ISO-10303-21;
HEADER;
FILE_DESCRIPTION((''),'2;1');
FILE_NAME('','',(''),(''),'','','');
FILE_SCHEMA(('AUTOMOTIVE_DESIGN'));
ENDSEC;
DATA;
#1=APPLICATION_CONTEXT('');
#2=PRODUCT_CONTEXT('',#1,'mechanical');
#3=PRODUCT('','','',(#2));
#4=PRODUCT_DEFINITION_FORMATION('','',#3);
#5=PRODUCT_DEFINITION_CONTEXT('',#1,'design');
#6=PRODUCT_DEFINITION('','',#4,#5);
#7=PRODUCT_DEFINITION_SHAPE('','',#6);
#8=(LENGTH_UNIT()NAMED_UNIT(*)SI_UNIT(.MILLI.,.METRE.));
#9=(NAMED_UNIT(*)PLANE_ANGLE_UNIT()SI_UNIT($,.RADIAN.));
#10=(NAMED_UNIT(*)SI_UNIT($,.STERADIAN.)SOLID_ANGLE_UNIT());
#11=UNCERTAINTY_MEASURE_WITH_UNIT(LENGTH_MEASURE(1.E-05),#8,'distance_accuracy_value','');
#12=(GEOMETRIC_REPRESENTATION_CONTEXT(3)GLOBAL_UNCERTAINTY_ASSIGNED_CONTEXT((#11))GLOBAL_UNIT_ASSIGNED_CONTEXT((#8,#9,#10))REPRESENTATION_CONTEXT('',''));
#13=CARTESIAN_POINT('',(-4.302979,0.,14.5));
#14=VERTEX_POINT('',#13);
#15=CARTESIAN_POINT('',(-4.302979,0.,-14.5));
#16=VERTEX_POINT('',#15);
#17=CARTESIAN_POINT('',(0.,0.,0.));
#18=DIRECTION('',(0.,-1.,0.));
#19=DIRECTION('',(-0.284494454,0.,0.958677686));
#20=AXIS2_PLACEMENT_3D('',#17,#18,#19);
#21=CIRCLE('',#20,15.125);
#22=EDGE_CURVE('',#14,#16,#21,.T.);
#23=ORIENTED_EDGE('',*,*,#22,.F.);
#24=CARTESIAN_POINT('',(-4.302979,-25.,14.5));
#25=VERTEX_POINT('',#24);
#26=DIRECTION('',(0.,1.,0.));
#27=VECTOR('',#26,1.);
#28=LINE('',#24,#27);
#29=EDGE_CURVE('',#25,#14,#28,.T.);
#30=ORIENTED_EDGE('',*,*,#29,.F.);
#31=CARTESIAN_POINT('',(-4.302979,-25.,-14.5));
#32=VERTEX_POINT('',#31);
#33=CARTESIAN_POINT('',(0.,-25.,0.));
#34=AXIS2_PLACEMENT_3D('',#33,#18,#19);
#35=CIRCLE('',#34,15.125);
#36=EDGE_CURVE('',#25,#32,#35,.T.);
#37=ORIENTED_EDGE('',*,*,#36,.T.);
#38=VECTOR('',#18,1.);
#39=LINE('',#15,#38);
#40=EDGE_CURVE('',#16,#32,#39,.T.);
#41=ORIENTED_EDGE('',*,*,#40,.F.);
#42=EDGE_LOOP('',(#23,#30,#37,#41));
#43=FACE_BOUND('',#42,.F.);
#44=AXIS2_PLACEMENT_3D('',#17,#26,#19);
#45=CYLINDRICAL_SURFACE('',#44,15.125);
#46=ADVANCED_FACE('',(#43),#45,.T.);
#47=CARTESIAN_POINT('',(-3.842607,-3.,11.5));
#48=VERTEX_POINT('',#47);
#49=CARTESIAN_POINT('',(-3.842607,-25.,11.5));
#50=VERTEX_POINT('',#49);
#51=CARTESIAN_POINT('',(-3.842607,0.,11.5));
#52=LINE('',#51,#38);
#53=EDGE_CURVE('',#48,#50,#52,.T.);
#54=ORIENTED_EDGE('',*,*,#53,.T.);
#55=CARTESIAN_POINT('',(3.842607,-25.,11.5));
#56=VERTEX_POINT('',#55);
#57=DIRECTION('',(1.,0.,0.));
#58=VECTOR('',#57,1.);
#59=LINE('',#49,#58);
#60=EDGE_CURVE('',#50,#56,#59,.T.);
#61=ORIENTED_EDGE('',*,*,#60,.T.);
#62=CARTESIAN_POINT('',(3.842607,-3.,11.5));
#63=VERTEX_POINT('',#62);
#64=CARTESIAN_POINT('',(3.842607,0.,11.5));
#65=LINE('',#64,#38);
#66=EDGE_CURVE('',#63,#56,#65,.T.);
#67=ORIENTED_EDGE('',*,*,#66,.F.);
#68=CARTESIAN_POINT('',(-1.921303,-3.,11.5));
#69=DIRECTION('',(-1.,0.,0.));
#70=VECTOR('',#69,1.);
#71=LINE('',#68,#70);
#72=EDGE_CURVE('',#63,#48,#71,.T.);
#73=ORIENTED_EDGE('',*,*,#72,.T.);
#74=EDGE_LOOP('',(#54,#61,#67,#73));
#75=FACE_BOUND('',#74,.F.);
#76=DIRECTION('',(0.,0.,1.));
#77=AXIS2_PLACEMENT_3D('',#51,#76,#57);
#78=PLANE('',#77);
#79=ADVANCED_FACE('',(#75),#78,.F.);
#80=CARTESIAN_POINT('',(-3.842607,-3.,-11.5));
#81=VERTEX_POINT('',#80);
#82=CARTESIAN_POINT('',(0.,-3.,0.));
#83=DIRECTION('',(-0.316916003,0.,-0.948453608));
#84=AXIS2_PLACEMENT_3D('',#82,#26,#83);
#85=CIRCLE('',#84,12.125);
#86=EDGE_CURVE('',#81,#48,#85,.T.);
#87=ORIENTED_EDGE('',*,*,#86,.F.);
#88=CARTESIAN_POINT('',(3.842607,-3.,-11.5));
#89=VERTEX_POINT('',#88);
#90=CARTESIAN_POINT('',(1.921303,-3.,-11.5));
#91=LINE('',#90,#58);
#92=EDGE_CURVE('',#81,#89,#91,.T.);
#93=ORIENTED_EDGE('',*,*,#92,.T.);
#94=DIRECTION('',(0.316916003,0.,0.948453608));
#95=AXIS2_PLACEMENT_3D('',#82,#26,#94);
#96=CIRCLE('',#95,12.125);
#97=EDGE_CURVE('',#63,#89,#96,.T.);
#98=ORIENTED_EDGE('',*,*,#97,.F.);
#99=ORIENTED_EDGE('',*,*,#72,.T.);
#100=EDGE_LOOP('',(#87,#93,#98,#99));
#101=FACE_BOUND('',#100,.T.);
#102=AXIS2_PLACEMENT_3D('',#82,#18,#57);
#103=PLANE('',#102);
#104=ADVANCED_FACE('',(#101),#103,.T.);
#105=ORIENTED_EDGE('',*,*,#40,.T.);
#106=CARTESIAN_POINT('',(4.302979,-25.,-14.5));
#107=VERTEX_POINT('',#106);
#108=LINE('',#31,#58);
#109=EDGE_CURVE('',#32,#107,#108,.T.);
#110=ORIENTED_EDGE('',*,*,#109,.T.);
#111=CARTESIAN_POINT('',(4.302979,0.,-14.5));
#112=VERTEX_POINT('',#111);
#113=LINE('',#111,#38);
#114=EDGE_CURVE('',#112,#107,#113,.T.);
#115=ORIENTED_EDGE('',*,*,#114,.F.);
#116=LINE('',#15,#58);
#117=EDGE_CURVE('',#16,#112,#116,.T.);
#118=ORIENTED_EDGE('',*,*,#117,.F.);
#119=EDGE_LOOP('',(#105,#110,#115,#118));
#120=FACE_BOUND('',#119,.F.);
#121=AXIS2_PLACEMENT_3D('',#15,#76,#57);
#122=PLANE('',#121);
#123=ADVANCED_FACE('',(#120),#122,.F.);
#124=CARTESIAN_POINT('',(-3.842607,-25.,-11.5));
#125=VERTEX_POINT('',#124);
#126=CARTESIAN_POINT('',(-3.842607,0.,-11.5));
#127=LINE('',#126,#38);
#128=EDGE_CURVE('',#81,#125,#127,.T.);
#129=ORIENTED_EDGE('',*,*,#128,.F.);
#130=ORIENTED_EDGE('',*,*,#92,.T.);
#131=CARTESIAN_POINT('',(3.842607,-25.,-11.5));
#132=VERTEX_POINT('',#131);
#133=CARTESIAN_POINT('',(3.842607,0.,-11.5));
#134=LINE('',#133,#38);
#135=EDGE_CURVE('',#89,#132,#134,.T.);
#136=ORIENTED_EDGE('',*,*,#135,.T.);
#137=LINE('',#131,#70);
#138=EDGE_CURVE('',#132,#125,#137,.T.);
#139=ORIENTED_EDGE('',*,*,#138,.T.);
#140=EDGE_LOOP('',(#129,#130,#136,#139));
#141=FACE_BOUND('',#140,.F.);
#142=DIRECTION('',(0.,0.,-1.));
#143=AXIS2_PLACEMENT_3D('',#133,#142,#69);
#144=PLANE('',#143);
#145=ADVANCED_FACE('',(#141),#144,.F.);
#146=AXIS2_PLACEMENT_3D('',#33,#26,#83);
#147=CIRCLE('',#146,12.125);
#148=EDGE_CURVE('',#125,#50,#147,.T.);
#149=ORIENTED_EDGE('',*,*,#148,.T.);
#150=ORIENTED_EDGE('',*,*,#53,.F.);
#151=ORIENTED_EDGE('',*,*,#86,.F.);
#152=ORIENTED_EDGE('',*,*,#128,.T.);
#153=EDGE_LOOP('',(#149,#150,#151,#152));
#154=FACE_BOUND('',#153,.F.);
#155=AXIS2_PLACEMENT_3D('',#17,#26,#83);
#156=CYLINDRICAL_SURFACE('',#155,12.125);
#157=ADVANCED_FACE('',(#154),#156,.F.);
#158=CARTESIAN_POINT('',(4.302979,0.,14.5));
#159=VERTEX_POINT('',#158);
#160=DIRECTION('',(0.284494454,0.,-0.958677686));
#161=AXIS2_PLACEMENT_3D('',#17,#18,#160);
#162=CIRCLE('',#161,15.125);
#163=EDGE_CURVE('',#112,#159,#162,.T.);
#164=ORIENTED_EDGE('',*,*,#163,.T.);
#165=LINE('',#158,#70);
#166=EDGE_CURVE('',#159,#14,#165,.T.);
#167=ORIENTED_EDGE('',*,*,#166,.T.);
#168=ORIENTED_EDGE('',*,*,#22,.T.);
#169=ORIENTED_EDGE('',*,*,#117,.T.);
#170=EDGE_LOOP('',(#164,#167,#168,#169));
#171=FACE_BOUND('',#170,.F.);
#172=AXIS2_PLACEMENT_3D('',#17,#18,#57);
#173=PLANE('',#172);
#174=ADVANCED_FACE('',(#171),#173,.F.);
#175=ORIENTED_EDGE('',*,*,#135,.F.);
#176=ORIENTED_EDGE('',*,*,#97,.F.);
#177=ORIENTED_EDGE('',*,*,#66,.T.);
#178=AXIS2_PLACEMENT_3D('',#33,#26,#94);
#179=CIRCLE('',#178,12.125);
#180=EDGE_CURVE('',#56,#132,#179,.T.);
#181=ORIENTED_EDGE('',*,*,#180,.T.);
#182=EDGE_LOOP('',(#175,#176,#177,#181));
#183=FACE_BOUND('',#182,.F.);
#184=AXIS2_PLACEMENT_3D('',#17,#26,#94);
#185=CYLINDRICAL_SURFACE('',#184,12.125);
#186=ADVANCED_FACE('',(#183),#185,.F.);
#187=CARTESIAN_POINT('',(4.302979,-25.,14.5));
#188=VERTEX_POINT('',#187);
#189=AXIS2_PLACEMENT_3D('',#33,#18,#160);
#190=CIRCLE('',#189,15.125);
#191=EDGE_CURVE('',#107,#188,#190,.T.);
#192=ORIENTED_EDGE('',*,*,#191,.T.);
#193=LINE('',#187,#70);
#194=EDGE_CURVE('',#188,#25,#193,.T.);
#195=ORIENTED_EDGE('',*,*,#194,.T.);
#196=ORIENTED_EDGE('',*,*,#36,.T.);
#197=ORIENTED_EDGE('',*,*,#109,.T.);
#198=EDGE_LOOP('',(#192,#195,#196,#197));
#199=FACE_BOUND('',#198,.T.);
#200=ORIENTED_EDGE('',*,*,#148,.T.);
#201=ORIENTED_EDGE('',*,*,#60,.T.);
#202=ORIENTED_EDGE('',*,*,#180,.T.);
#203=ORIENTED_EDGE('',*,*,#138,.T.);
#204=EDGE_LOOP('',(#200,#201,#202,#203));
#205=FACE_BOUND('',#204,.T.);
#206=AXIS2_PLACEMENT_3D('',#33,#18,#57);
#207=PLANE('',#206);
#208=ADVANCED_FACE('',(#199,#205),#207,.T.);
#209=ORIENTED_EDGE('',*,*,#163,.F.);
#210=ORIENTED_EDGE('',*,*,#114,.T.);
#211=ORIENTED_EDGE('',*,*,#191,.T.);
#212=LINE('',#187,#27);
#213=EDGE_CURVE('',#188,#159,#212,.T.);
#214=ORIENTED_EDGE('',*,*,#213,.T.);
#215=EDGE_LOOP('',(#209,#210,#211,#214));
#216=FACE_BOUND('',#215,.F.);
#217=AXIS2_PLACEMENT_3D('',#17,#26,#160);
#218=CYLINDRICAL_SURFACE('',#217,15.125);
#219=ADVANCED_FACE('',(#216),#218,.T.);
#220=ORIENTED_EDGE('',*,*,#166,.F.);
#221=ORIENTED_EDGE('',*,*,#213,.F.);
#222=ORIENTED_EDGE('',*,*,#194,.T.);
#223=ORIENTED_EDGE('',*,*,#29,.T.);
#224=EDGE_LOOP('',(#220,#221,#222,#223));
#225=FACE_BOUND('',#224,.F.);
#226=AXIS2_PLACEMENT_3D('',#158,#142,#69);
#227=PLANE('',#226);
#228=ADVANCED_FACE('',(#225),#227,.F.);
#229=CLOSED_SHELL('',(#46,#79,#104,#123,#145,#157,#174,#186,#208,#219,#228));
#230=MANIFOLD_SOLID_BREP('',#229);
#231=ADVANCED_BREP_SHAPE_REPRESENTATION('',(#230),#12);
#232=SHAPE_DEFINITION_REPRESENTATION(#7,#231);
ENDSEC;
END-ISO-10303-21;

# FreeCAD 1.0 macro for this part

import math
import FreeCAD as App
import Part
import Sketcher
from FreeCAD import Vector
Q = App.Units.Quantity

doc = App.newDocument("Part")
params = doc.addObject("Spreadsheet::Sheet", "Params")
for row, (alias, value) in enumerate([
    ("pad1_length", "3 mm"),
    ("pad2_length", "25 mm"),
], start=1):
    params.set(f"A{row}", alias)
    params.set(f"B{row}", "=" + value)
    params.setAlias(f"B{row}", alias)

body = doc.addObject("PartDesign::Body", "Body")

# Sketch on XZ plane
sketch1 = body.newObject("Sketcher::SketchObject", "Sketch")
sketch1.AttachmentSupport = (doc.getObject("XZ_Plane"), [""])
sketch1.MapMode = "FlatFace"
sketch1.addGeometry([
    Part.ArcOfCircle(Part.Circle(Vector(0, 0, 0), Vector(0, 0, 1), 15), math.radians(107), math.radians(253)),
    Part.LineSegment(Vector(-4, -14, 0), Vector(4, -14, 0)),
    Part.ArcOfCircle(Part.Circle(Vector(0, 0, 0), Vector(0, 0, 1), 15), math.radians(-73), math.radians(73)),
    Part.LineSegment(Vector(4, 14, 0), Vector(-4, 14, 0)),
], False)
sketch1.addConstraint([
    Sketcher.Constraint("Coincident", 0, 2, 1, 1),
    Sketcher.Constraint("Coincident", 1, 2, 2, 1),
    Sketcher.Constraint("Coincident", 2, 2, 3, 1),
    Sketcher.Constraint("Coincident", 3, 2, 0, 1),
    Sketcher.Constraint("Horizontal", 1),
    Sketcher.Constraint("Horizontal", 3),
    Sketcher.Constraint("Coincident", 0, 3, -1, 1),
    Sketcher.Constraint("Coincident", 2, 3, -1, 1),
    Sketcher.Constraint("Equal", 0, 2),
    Sketcher.Constraint("Vertical", 1, 2, 2, 2),
    Sketcher.Constraint("Radius", 0, Q("15.125 mm")),
    Sketcher.Constraint("DistanceY", 1, 2, 2, 2, Q("29 mm")),
])
pad1 = body.newObject("PartDesign::Pad", "Pad")
pad1.Profile = sketch1
pad1.setExpression("Length", "Params.pad1_length")

# Sketch on XZ plane
sketch2 = body.newObject("Sketcher::SketchObject", "Sketch001")
sketch2.AttachmentSupport = (doc.getObject("XZ_Plane"), [""])
sketch2.MapMode = "FlatFace"
sketch2.addGeometry([
    Part.ArcOfCircle(Part.Circle(Vector(0, 0, 0), Vector(0, 0, 1), 15), math.radians(107), math.radians(253)),  # 0
    Part.LineSegment(Vector(-4, -14, 0), Vector(4, -14, 0)),  # 1
    Part.ArcOfCircle(Part.Circle(Vector(0, 0, 0), Vector(0, 0, 1), 15), math.radians(-73), math.radians(73)),  # 2
    Part.LineSegment(Vector(4, 14, 0), Vector(-4, 14, 0)),  # 3
    Part.LineSegment(Vector(4, -12, 0), Vector(-4, -12, 0)),  # 4
    Part.ArcOfCircle(Part.Circle(Vector(0, 0, 0), Vector(0, 0, 1), 12), math.radians(108), math.radians(252)),  # 5
    Part.LineSegment(Vector(-4, 12, 0), Vector(4, 12, 0)),  # 6
    Part.ArcOfCircle(Part.Circle(Vector(0, 0, 0), Vector(0, 0, 1), 12), math.radians(-72), math.radians(72)),  # 7
], False)
sketch2.addConstraint([
    Sketcher.Constraint("Coincident", 0, 2, 1, 1),
    Sketcher.Constraint("Coincident", 1, 2, 2, 1),
    Sketcher.Constraint("Coincident", 2, 2, 3, 1),
    Sketcher.Constraint("Coincident", 3, 2, 0, 1),
    Sketcher.Constraint("Coincident", 4, 2, 5, 2),
    Sketcher.Constraint("Coincident", 5, 1, 6, 1),
    Sketcher.Constraint("Coincident", 6, 2, 7, 2),
    Sketcher.Constraint("Coincident", 7, 1, 4, 1),
    Sketcher.Constraint("Horizontal", 1),
    Sketcher.Constraint("Horizontal", 3),
    Sketcher.Constraint("Horizontal", 4),
    Sketcher.Constraint("Horizontal", 6),
    Sketcher.Constraint("Coincident", 0, 3, -1, 1),
    Sketcher.Constraint("Coincident", 2, 3, -1, 1),
    Sketcher.Constraint("Coincident", 5, 3, -1, 1),
    Sketcher.Constraint("Coincident", 7, 3, -1, 1),
    Sketcher.Constraint("Equal", 0, 2),
    Sketcher.Constraint("Equal", 5, 7),
    Sketcher.Constraint("Vertical", 1, 2, 2, 2),
    Sketcher.Constraint("Vertical", 4, 2, 5, 1),
    Sketcher.Constraint("Radius", 0, Q("15.125 mm")),
    Sketcher.Constraint("Radius", 5, Q("12.125 mm")),
    Sketcher.Constraint("DistanceY", 1, 2, 2, 2, Q("29 mm")),
    Sketcher.Constraint("DistanceY", 0, 2, 4, 2, Q("3 mm")),
])
pad2 = body.newObject("PartDesign::Pad", "Pad001")
pad2.Profile = sketch2
pad2.setExpression("Length", "Params.pad2_length")

doc.recompute()
